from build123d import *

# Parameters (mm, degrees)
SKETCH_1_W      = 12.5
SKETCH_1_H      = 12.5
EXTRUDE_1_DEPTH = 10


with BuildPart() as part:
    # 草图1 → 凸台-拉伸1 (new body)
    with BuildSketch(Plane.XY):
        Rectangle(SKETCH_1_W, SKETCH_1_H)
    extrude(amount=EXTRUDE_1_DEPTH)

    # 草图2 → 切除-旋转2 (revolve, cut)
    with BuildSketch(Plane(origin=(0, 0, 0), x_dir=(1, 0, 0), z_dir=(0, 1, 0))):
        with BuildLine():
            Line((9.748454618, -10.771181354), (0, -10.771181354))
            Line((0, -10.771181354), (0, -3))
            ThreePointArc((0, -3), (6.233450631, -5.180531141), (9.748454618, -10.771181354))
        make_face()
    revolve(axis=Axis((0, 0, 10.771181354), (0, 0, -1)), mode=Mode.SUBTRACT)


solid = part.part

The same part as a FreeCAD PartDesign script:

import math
import FreeCAD as App
import Part
import Sketcher
from FreeCAD import Vector


def add_polygon(sketch, points):
    """Adds a closed chain of lines whose ends are joined by coincident constraints."""
    first, n = sketch.GeometryCount, len(points)
    for a, b in zip(points, points[1:] + points[:1]):
        sketch.addGeometry(Part.LineSegment(App.Vector(*a, 0), App.Vector(*b, 0)), False)
    for i in range(n):
        sketch.addConstraint(Sketcher.Constraint("Coincident", first + i, 2, first + (i + 1) % n, 1))

doc = App.newDocument("Part")
params = doc.addObject("Spreadsheet::Sheet", "Params")
for row, (alias, value) in enumerate([
    ("sketch1_width", "12.5 mm"),
    ("pad1_length", "10 mm"),
    ("sketch2_radius", "10 mm"),
    ("groove_angle", "360 deg"),
], start=1):
    params.set(f"A{row}", alias)
    params.set(f"B{row}", "=" + value)
    params.setAlias(f"B{row}", alias)

body = doc.addObject("PartDesign::Body", "Body")

sketch1 = body.newObject("Sketcher::SketchObject", "Sketch")
sketch1.AttachmentSupport = (doc.getObject("XY_Plane"), [""])
sketch1.MapMode = "FlatFace"
add_polygon(sketch1, [(-6.25, 6.25), (-6.25, -6.25), (6.25, -6.25), (6.25, 6.25)])
sketch1.addConstraint([
    Sketcher.Constraint("Vertical", 0),
    Sketcher.Constraint("Horizontal", 1),
    Sketcher.Constraint("Vertical", 2),
    Sketcher.Constraint("Horizontal", 3),
    Sketcher.Constraint("Symmetric", 0, 2, 2, 2, -1, 1),
    Sketcher.Constraint("Equal", 3, 0),
    Sketcher.Constraint("DistanceX", 1, 1, 1, 2, 12.5),
])
sketch1.setExpression("Constraints[10]", "Params.sketch1_width")
pad1 = body.newObject("PartDesign::Pad", "Pad")
pad1.Profile = sketch1
pad1.setExpression("Length", "Params.pad1_length")

sketch2 = body.newObject("Sketcher::SketchObject", "Sketch001")
sketch2.AttachmentSupport = (doc.getObject("XZ_Plane"), [""])
sketch2.MapMode = "FlatFace"
sketch2.addGeometry([
    Part.LineSegment(Vector(0, 10.771181, 0), Vector(9.748455, 10.771181, 0)),
    Part.ArcOfCircle(Part.Circle(Vector(0, 13, 0), Vector(0, 0, 1), 10), math.radians(-90), math.radians(-12.878355)),
    Part.LineSegment(Vector(0, 3, 0), Vector(0, 10.771181, 0)),
], False)
sketch2.addConstraint([
    Sketcher.Constraint("Coincident", 0, 2, 1, 2),
    Sketcher.Constraint("Coincident", 1, 1, 2, 1),
    Sketcher.Constraint("Coincident", 2, 2, 0, 1),
    Sketcher.Constraint("Horizontal", 0),
    Sketcher.Constraint("Vertical", 2),
    Sketcher.Constraint("PointOnObject", 1, 3, -2),
    Sketcher.Constraint("PointOnObject", 1, 1, -2),
    Sketcher.Constraint("Radius", 1, 10.0),
    Sketcher.Constraint("DistanceY", -1, 1, 1, 3, 13.0),
    Sketcher.Constraint("DistanceY", 2, 1, 2, 2, 7.771181),
])
sketch2.setExpression("Constraints[7]", "Params.sketch2_radius")
groove = body.newObject("PartDesign::Groove", "Groove")
groove.Profile = sketch2
groove.ReferenceAxis = (sketch2, ["V_Axis"])
groove.setExpression("Angle", "Params.groove_angle")

doc.recompute()
